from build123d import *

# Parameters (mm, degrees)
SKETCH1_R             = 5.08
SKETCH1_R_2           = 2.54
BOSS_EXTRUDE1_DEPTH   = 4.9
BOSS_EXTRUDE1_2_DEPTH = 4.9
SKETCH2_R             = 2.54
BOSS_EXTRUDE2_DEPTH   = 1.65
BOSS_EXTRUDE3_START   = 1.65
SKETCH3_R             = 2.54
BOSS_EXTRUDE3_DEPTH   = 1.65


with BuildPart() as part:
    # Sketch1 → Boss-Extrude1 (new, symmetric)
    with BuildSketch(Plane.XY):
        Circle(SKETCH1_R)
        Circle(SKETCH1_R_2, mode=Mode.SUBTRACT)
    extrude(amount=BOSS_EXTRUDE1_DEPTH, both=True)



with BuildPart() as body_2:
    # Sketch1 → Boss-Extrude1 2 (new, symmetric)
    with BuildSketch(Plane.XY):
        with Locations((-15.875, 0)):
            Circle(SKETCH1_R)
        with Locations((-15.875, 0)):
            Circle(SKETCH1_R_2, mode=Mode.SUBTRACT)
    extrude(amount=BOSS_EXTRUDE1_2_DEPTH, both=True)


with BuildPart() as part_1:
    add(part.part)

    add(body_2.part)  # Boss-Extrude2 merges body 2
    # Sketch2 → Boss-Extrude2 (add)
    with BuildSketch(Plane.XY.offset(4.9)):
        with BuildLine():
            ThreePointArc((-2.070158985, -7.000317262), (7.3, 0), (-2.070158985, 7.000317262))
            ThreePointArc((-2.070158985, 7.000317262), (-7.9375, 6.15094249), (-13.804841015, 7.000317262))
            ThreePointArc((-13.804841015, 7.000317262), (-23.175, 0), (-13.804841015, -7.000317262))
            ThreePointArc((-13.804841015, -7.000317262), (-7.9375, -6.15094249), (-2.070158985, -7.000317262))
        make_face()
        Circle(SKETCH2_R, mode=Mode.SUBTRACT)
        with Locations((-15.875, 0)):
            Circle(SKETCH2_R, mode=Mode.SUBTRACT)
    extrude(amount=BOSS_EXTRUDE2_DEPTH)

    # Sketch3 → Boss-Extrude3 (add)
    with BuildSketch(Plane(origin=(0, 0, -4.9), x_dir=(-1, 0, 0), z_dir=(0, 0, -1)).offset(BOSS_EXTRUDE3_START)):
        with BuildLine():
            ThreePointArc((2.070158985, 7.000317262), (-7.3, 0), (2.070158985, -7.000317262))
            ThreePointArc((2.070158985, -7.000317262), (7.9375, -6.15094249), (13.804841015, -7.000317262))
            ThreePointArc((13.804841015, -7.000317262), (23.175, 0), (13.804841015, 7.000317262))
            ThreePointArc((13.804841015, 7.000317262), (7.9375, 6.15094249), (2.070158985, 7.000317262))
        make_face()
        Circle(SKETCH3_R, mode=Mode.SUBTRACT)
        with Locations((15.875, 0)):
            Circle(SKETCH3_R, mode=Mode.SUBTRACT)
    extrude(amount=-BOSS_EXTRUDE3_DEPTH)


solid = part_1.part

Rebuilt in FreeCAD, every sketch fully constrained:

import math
import FreeCAD as App
import Part
import Sketcher

V = App.Vector

doc = App.newDocument("Part")
params = doc.addObject("Spreadsheet::Sheet", "Params")
for row, (alias, value) in enumerate([
    ("sketch1_diameter", "10.16 mm"),
    ("sketch1_diameter2", "5.08 mm"),
    ("pad1_length", "9.8 mm"),
    ("sketch2_diameter", "10.16 mm"),
    ("sketch2_diameter2", "5.08 mm"),
    ("pad2_length", "9.8 mm"),
    ("sketch3_radius", "7.3 mm"),
    ("sketch3_diameter", "5.08 mm"),
    ("sketch3_radius2", "20.69 mm"),
    ("pad3_length", "1.65 mm"),
    ("sketch4_radius", "7.3 mm"),
    ("sketch4_diameter", "5.08 mm"),
    ("sketch4_radius2", "20.69 mm"),
    ("pad4_length", "1.65 mm"),
], start=1):
    params.set(f"A{row}", alias)
    params.set(f"B{row}", "=" + value)
    params.setAlias(f"B{row}", alias)

body = doc.addObject("PartDesign::Body", "Body")

# Sketch on XY plane
sketch1 = doc.addObject("Sketcher::SketchObject", "Sketch")
body.addObject(sketch1)
sketch1.AttachmentSupport = (doc.XY_Plane, [""])
sketch1.MapMode = "FlatFace"
sketch1.addGeometry(Part.Circle(V(0, 0, 0), V(0, 0, 1), 5.1), False)
sketch1.addGeometry(Part.Circle(V(0, 0, 0), V(0, 0, 1), 2.5), False)
sketch1.addConstraint(Sketcher.Constraint("Coincident", 0, 3, -1, 1))
sketch1.addConstraint(Sketcher.Constraint("Coincident", 1, 3, -1, 1))
sketch1.addConstraint(Sketcher.Constraint("Diameter", 0, 10.16))
sketch1.addConstraint(Sketcher.Constraint("Diameter", 1, 5.08))
sketch1.setExpression("Constraints[2]", "Params.sketch1_diameter")
sketch1.setExpression("Constraints[3]", "Params.sketch1_diameter2")
pad1 = doc.addObject("PartDesign::Pad", "Pad")
body.addObject(pad1)
pad1.Profile = sketch1
pad1.setExpression("Length", "Params.pad1_length")
pad1.Midplane = True
body2 = doc.addObject("PartDesign::Body", "Body001")

# Sketch on XY plane
sketch2 = doc.addObject("Sketcher::SketchObject", "Sketch001")
body2.addObject(sketch2)
sketch2.AttachmentSupport = (doc.getObject("XY_Plane001"), [""])
sketch2.MapMode = "FlatFace"
sketch2.addGeometry(Part.Circle(V(-15.9, 0, 0), V(0, 0, 1), 5.1), False)
sketch2.addGeometry(Part.Circle(V(-15.9, 0, 0), V(0, 0, 1), 2.5), False)
sketch2.addConstraint(Sketcher.Constraint("Coincident", 1, 3, 0, 3))
sketch2.addConstraint(Sketcher.Constraint("PointOnObject", 0, 3, -1))
sketch2.addConstraint(Sketcher.Constraint("Diameter", 0, 10.16))
sketch2.addConstraint(Sketcher.Constraint("Diameter", 1, 5.08))
sketch2.addConstraint(Sketcher.Constraint("DistanceX", 0, 3, -1, 1, 15.875))
sketch2.setExpression("Constraints[2]", "Params.sketch2_diameter")
sketch2.setExpression("Constraints[3]", "Params.sketch2_diameter2")
pad2 = doc.addObject("PartDesign::Pad", "Pad001")
body2.addObject(pad2)
pad2.Profile = sketch2
pad2.setExpression("Length", "Params.pad2_length")
pad2.Midplane = True
body.AllowCompound = True
doc.recompute()

boolean = doc.addObject("PartDesign::Boolean", "Boolean")
body.addObject(boolean)
boolean.Type = "Fuse"
boolean.addObjects([body2])

# Sketch on XY plane
sketch3 = doc.addObject("Sketcher::SketchObject", "Sketch002")
body.addObject(sketch3)
sketch3.AttachmentSupport = (doc.XY_Plane, [""])
sketch3.MapMode = "FlatFace"
sketch3.AttachmentOffset = App.Placement(V(0, 0, 4.9), App.Rotation())
sketch3.addGeometry(Part.ArcOfCircle(Part.Circle(V(0, 0, 0), V(0, 0, 1), 7.3), math.radians(-106), math.radians(106)), False)
sketch3.addGeometry(Part.ArcOfCircle(Part.Circle(V(-7.9, 26.8, 0), V(0, 0, 1), 20.7), math.radians(-106), math.radians(-74)), False)
sketch3.addGeometry(Part.ArcOfCircle(Part.Circle(V(-15.9, 0, 0), V(0, 0, 1), 7.3), math.radians(74), math.radians(286)), False)
sketch3.addGeometry(Part.ArcOfCircle(Part.Circle(V(-7.9, -26.8, 0), V(0, 0, 1), 20.7), math.radians(74), math.radians(106)), False)
sketch3.addGeometry(Part.Circle(V(-15.9, 0, 0), V(0, 0, 1), 2.5), False)
sketch3.addGeometry(Part.Circle(V(0, 0, 0), V(0, 0, 1), 2.5), False)
sketch3.addConstraint(Sketcher.Constraint("Tangent", 0, 2, 1, 2))
sketch3.addConstraint(Sketcher.Constraint("Tangent", 1, 1, 2, 1))
sketch3.addConstraint(Sketcher.Constraint("Tangent", 2, 2, 3, 2))
sketch3.addConstraint(Sketcher.Constraint("Tangent", 3, 1, 0, 1))
sketch3.addConstraint(Sketcher.Constraint("Coincident", 0, 3, -1, 1))
sketch3.addConstraint(Sketcher.Constraint("Coincident", 5, 3, -1, 1))
sketch3.addConstraint(Sketcher.Constraint("Coincident", 4, 3, 2, 3))
sketch3.addConstraint(Sketcher.Constraint("Equal", 0, 2))
sketch3.addConstraint(Sketcher.Constraint("Equal", 1, 3))
sketch3.addConstraint(Sketcher.Constraint("Equal", 4, 5))
sketch3.addConstraint(Sketcher.Constraint("PointOnObject", 2, 3, -1))
sketch3.addConstraint(Sketcher.Constraint("Radius", 0, 7.3))
sketch3.addConstraint(Sketcher.Constraint("Diameter", 4, 5.08))
sketch3.addConstraint(Sketcher.Constraint("Radius", 1, 20.69))
sketch3.addConstraint(Sketcher.Constraint("DistanceX", 2, 3, -1, 1, 15.875))
sketch3.setExpression("Constraints[11]", "Params.sketch3_radius")
sketch3.setExpression("Constraints[12]", "Params.sketch3_diameter")
sketch3.setExpression("Constraints[13]", "Params.sketch3_radius2")
pad3 = doc.addObject("PartDesign::Pad", "Pad002")
body.addObject(pad3)
pad3.Profile = sketch3
pad3.setExpression("Length", "Params.pad3_length")

# Sketch on XY plane
sketch4 = doc.addObject("Sketcher::SketchObject", "Sketch003")
body.addObject(sketch4)
sketch4.AttachmentSupport = (doc.XY_Plane, [""])
sketch4.MapMode = "FlatFace"
sketch4.AttachmentOffset = App.Placement(V(0, 0, -6.55), App.Rotation())
sketch4.addGeometry(Part.ArcOfCircle(Part.Circle(V(0, 0, 0), V(0, 0, 1), 7.3), math.radians(-106), math.radians(106)), False)
sketch4.addGeometry(Part.ArcOfCircle(Part.Circle(V(-7.9, -26.8, 0), V(0, 0, 1), 20.7), math.radians(74), math.radians(106)), False)
sketch4.addGeometry(Part.ArcOfCircle(Part.Circle(V(-15.9, 0, 0), V(0, 0, 1), 7.3), math.radians(74), math.radians(286)), False)
sketch4.addGeometry(Part.ArcOfCircle(Part.Circle(V(-7.9, 26.8, 0), V(0, 0, 1), 20.7), math.radians(-106), math.radians(-74)), False)
sketch4.addGeometry(Part.Circle(V(0, 0, 0), V(0, 0, 1), 2.5), False)
sketch4.addGeometry(Part.Circle(V(-15.9, 0, 0), V(0, 0, 1), 2.5), False)
sketch4.addConstraint(Sketcher.Constraint("Tangent", 0, 1, 1, 1))
sketch4.addConstraint(Sketcher.Constraint("Tangent", 1, 2, 2, 2))
sketch4.addConstraint(Sketcher.Constraint("Tangent", 2, 1, 3, 1))
sketch4.addConstraint(Sketcher.Constraint("Tangent", 3, 2, 0, 2))
sketch4.addConstraint(Sketcher.Constraint("Coincident", 0, 3, -1, 1))
sketch4.addConstraint(Sketcher.Constraint("Coincident", 4, 3, -1, 1))
sketch4.addConstraint(Sketcher.Constraint("Coincident", 5, 3, 2, 3))
sketch4.addConstraint(Sketcher.Constraint("Equal", 0, 2))
sketch4.addConstraint(Sketcher.Constraint("Equal", 1, 3))
sketch4.addConstraint(Sketcher.Constraint("Equal", 4, 5))
sketch4.addConstraint(Sketcher.Constraint("PointOnObject", 2, 3, -1))
sketch4.addConstraint(Sketcher.Constraint("Radius", 0, 7.3))
sketch4.addConstraint(Sketcher.Constraint("Diameter", 4, 5.08))
sketch4.addConstraint(Sketcher.Constraint("Radius", 1, 20.69))
sketch4.addConstraint(Sketcher.Constraint("DistanceX", 2, 3, -1, 1, 15.875))
sketch4.setExpression("Constraints[11]", "Params.sketch4_radius")
sketch4.setExpression("Constraints[12]", "Params.sketch4_diameter")
sketch4.setExpression("Constraints[13]", "Params.sketch4_radius2")
pad4 = doc.addObject("PartDesign::Pad", "Pad003")
body.addObject(pad4)
pad4.Profile = sketch4
pad4.setExpression("Length", "Params.pad4_length")

doc.recompute()
